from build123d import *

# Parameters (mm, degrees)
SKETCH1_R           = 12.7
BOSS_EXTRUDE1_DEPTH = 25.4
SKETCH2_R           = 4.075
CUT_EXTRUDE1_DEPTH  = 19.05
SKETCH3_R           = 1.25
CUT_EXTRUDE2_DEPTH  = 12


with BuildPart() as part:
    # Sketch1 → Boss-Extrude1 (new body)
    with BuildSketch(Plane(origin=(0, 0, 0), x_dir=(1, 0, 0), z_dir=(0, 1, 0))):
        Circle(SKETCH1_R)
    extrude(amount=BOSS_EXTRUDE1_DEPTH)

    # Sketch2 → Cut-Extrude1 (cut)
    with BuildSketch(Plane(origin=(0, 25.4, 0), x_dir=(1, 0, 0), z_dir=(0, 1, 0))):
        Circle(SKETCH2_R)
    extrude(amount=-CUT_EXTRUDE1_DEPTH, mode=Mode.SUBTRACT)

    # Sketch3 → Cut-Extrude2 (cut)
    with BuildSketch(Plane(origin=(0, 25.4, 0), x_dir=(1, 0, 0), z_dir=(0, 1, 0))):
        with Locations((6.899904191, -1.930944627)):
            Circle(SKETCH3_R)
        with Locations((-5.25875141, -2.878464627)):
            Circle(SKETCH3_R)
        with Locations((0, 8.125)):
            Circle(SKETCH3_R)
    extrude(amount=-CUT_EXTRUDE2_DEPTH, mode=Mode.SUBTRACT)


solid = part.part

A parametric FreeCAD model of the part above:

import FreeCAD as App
import Part
import Sketcher
from FreeCAD import Vector

doc = App.newDocument("Part")
body = doc.addObject("PartDesign::Body", "Body")

sketch1 = body.newObject("Sketcher::SketchObject", "Sketch")
sketch1.AttachmentSupport = (doc.getObject("XZ_Plane"), [""])
sketch1.MapMode = "FlatFace"
sketch1.addGeometry(Part.Circle(Vector(0, 0, 0), Vector(0, 0, 1), 13), False)
sketch1.addConstraint(Sketcher.Constraint("Coincident", 0, 3, -1, 1))
sketch1.addConstraint(Sketcher.Constraint("Diameter", 0, 25.4))
pad1 = body.newObject("PartDesign::Pad", "Pad")
pad1.Profile = sketch1
pad1.Length = 25.4
pad1.Reversed = True

sketch2 = body.newObject("Sketcher::SketchObject", "Sketch001")
sketch2.AttachmentSupport = (doc.getObject("XZ_Plane"), [""])
sketch2.MapMode = "FlatFace"
sketch2.AttachmentOffset = App.Placement(Vector(0, 0, -25.4), App.Rotation())
sketch2.addGeometry(Part.Circle(Vector(0, 0, 0), Vector(0, 0, 1), 4.1), False)
sketch2.addConstraint(Sketcher.Constraint("Coincident", 0, 3, -1, 1))
sketch2.addConstraint(Sketcher.Constraint("Diameter", 0, 8.15))
pocket1 = body.newObject("PartDesign::Pocket", "Pocket")
pocket1.Profile = sketch2
pocket1.Length = 19.05
pocket1.Reversed = True

sketch3 = body.newObject("Sketcher::SketchObject", "Sketch002")
sketch3.AttachmentSupport = (doc.getObject("XZ_Plane"), [""])
sketch3.MapMode = "FlatFace"
sketch3.AttachmentOffset = App.Placement(Vector(0, 0, -25.4), App.Rotation())
sketch3.addGeometry(Part.Circle(Vector(6.9, 1.9, 0), Vector(0, 0, 1), 1.2), False)
sketch3.addGeometry(Part.Circle(Vector(-5.3, 2.9, 0), Vector(0, 0, 1), 1.2), False)
sketch3.addGeometry(Part.Circle(Vector(0, -8.1, 0), Vector(0, 0, 1), 1.2), False)
sketch3.addConstraint(Sketcher.Constraint("Equal", 0, 1))
sketch3.addConstraint(Sketcher.Constraint("Equal", 1, 2))
sketch3.addConstraint(Sketcher.Constraint("PointOnObject", 2, 3, -2))
sketch3.addConstraint(Sketcher.Constraint("Diameter", 0, 2.5))
sketch3.addConstraint(Sketcher.Constraint("DistanceY", 2, 3, -1, 1, 8.125))
sketch3.addConstraint(Sketcher.Constraint("DistanceX", 1, 3, -1, 1, 5.258751))
sketch3.addConstraint(Sketcher.Constraint("DistanceY", 0, 3, 1, 3, 0.94752))
sketch3.addConstraint(Sketcher.Constraint("DistanceX", -1, 1, 0, 3, 6.899904))
sketch3.addConstraint(Sketcher.Constraint("DistanceY", -1, 1, 0, 3, 1.930945))
pocket2 = body.newObject("PartDesign::Pocket", "Pocket001")
pocket2.Profile = sketch3
pocket2.Length = 12
pocket2.Reversed = True

doc.recompute()
